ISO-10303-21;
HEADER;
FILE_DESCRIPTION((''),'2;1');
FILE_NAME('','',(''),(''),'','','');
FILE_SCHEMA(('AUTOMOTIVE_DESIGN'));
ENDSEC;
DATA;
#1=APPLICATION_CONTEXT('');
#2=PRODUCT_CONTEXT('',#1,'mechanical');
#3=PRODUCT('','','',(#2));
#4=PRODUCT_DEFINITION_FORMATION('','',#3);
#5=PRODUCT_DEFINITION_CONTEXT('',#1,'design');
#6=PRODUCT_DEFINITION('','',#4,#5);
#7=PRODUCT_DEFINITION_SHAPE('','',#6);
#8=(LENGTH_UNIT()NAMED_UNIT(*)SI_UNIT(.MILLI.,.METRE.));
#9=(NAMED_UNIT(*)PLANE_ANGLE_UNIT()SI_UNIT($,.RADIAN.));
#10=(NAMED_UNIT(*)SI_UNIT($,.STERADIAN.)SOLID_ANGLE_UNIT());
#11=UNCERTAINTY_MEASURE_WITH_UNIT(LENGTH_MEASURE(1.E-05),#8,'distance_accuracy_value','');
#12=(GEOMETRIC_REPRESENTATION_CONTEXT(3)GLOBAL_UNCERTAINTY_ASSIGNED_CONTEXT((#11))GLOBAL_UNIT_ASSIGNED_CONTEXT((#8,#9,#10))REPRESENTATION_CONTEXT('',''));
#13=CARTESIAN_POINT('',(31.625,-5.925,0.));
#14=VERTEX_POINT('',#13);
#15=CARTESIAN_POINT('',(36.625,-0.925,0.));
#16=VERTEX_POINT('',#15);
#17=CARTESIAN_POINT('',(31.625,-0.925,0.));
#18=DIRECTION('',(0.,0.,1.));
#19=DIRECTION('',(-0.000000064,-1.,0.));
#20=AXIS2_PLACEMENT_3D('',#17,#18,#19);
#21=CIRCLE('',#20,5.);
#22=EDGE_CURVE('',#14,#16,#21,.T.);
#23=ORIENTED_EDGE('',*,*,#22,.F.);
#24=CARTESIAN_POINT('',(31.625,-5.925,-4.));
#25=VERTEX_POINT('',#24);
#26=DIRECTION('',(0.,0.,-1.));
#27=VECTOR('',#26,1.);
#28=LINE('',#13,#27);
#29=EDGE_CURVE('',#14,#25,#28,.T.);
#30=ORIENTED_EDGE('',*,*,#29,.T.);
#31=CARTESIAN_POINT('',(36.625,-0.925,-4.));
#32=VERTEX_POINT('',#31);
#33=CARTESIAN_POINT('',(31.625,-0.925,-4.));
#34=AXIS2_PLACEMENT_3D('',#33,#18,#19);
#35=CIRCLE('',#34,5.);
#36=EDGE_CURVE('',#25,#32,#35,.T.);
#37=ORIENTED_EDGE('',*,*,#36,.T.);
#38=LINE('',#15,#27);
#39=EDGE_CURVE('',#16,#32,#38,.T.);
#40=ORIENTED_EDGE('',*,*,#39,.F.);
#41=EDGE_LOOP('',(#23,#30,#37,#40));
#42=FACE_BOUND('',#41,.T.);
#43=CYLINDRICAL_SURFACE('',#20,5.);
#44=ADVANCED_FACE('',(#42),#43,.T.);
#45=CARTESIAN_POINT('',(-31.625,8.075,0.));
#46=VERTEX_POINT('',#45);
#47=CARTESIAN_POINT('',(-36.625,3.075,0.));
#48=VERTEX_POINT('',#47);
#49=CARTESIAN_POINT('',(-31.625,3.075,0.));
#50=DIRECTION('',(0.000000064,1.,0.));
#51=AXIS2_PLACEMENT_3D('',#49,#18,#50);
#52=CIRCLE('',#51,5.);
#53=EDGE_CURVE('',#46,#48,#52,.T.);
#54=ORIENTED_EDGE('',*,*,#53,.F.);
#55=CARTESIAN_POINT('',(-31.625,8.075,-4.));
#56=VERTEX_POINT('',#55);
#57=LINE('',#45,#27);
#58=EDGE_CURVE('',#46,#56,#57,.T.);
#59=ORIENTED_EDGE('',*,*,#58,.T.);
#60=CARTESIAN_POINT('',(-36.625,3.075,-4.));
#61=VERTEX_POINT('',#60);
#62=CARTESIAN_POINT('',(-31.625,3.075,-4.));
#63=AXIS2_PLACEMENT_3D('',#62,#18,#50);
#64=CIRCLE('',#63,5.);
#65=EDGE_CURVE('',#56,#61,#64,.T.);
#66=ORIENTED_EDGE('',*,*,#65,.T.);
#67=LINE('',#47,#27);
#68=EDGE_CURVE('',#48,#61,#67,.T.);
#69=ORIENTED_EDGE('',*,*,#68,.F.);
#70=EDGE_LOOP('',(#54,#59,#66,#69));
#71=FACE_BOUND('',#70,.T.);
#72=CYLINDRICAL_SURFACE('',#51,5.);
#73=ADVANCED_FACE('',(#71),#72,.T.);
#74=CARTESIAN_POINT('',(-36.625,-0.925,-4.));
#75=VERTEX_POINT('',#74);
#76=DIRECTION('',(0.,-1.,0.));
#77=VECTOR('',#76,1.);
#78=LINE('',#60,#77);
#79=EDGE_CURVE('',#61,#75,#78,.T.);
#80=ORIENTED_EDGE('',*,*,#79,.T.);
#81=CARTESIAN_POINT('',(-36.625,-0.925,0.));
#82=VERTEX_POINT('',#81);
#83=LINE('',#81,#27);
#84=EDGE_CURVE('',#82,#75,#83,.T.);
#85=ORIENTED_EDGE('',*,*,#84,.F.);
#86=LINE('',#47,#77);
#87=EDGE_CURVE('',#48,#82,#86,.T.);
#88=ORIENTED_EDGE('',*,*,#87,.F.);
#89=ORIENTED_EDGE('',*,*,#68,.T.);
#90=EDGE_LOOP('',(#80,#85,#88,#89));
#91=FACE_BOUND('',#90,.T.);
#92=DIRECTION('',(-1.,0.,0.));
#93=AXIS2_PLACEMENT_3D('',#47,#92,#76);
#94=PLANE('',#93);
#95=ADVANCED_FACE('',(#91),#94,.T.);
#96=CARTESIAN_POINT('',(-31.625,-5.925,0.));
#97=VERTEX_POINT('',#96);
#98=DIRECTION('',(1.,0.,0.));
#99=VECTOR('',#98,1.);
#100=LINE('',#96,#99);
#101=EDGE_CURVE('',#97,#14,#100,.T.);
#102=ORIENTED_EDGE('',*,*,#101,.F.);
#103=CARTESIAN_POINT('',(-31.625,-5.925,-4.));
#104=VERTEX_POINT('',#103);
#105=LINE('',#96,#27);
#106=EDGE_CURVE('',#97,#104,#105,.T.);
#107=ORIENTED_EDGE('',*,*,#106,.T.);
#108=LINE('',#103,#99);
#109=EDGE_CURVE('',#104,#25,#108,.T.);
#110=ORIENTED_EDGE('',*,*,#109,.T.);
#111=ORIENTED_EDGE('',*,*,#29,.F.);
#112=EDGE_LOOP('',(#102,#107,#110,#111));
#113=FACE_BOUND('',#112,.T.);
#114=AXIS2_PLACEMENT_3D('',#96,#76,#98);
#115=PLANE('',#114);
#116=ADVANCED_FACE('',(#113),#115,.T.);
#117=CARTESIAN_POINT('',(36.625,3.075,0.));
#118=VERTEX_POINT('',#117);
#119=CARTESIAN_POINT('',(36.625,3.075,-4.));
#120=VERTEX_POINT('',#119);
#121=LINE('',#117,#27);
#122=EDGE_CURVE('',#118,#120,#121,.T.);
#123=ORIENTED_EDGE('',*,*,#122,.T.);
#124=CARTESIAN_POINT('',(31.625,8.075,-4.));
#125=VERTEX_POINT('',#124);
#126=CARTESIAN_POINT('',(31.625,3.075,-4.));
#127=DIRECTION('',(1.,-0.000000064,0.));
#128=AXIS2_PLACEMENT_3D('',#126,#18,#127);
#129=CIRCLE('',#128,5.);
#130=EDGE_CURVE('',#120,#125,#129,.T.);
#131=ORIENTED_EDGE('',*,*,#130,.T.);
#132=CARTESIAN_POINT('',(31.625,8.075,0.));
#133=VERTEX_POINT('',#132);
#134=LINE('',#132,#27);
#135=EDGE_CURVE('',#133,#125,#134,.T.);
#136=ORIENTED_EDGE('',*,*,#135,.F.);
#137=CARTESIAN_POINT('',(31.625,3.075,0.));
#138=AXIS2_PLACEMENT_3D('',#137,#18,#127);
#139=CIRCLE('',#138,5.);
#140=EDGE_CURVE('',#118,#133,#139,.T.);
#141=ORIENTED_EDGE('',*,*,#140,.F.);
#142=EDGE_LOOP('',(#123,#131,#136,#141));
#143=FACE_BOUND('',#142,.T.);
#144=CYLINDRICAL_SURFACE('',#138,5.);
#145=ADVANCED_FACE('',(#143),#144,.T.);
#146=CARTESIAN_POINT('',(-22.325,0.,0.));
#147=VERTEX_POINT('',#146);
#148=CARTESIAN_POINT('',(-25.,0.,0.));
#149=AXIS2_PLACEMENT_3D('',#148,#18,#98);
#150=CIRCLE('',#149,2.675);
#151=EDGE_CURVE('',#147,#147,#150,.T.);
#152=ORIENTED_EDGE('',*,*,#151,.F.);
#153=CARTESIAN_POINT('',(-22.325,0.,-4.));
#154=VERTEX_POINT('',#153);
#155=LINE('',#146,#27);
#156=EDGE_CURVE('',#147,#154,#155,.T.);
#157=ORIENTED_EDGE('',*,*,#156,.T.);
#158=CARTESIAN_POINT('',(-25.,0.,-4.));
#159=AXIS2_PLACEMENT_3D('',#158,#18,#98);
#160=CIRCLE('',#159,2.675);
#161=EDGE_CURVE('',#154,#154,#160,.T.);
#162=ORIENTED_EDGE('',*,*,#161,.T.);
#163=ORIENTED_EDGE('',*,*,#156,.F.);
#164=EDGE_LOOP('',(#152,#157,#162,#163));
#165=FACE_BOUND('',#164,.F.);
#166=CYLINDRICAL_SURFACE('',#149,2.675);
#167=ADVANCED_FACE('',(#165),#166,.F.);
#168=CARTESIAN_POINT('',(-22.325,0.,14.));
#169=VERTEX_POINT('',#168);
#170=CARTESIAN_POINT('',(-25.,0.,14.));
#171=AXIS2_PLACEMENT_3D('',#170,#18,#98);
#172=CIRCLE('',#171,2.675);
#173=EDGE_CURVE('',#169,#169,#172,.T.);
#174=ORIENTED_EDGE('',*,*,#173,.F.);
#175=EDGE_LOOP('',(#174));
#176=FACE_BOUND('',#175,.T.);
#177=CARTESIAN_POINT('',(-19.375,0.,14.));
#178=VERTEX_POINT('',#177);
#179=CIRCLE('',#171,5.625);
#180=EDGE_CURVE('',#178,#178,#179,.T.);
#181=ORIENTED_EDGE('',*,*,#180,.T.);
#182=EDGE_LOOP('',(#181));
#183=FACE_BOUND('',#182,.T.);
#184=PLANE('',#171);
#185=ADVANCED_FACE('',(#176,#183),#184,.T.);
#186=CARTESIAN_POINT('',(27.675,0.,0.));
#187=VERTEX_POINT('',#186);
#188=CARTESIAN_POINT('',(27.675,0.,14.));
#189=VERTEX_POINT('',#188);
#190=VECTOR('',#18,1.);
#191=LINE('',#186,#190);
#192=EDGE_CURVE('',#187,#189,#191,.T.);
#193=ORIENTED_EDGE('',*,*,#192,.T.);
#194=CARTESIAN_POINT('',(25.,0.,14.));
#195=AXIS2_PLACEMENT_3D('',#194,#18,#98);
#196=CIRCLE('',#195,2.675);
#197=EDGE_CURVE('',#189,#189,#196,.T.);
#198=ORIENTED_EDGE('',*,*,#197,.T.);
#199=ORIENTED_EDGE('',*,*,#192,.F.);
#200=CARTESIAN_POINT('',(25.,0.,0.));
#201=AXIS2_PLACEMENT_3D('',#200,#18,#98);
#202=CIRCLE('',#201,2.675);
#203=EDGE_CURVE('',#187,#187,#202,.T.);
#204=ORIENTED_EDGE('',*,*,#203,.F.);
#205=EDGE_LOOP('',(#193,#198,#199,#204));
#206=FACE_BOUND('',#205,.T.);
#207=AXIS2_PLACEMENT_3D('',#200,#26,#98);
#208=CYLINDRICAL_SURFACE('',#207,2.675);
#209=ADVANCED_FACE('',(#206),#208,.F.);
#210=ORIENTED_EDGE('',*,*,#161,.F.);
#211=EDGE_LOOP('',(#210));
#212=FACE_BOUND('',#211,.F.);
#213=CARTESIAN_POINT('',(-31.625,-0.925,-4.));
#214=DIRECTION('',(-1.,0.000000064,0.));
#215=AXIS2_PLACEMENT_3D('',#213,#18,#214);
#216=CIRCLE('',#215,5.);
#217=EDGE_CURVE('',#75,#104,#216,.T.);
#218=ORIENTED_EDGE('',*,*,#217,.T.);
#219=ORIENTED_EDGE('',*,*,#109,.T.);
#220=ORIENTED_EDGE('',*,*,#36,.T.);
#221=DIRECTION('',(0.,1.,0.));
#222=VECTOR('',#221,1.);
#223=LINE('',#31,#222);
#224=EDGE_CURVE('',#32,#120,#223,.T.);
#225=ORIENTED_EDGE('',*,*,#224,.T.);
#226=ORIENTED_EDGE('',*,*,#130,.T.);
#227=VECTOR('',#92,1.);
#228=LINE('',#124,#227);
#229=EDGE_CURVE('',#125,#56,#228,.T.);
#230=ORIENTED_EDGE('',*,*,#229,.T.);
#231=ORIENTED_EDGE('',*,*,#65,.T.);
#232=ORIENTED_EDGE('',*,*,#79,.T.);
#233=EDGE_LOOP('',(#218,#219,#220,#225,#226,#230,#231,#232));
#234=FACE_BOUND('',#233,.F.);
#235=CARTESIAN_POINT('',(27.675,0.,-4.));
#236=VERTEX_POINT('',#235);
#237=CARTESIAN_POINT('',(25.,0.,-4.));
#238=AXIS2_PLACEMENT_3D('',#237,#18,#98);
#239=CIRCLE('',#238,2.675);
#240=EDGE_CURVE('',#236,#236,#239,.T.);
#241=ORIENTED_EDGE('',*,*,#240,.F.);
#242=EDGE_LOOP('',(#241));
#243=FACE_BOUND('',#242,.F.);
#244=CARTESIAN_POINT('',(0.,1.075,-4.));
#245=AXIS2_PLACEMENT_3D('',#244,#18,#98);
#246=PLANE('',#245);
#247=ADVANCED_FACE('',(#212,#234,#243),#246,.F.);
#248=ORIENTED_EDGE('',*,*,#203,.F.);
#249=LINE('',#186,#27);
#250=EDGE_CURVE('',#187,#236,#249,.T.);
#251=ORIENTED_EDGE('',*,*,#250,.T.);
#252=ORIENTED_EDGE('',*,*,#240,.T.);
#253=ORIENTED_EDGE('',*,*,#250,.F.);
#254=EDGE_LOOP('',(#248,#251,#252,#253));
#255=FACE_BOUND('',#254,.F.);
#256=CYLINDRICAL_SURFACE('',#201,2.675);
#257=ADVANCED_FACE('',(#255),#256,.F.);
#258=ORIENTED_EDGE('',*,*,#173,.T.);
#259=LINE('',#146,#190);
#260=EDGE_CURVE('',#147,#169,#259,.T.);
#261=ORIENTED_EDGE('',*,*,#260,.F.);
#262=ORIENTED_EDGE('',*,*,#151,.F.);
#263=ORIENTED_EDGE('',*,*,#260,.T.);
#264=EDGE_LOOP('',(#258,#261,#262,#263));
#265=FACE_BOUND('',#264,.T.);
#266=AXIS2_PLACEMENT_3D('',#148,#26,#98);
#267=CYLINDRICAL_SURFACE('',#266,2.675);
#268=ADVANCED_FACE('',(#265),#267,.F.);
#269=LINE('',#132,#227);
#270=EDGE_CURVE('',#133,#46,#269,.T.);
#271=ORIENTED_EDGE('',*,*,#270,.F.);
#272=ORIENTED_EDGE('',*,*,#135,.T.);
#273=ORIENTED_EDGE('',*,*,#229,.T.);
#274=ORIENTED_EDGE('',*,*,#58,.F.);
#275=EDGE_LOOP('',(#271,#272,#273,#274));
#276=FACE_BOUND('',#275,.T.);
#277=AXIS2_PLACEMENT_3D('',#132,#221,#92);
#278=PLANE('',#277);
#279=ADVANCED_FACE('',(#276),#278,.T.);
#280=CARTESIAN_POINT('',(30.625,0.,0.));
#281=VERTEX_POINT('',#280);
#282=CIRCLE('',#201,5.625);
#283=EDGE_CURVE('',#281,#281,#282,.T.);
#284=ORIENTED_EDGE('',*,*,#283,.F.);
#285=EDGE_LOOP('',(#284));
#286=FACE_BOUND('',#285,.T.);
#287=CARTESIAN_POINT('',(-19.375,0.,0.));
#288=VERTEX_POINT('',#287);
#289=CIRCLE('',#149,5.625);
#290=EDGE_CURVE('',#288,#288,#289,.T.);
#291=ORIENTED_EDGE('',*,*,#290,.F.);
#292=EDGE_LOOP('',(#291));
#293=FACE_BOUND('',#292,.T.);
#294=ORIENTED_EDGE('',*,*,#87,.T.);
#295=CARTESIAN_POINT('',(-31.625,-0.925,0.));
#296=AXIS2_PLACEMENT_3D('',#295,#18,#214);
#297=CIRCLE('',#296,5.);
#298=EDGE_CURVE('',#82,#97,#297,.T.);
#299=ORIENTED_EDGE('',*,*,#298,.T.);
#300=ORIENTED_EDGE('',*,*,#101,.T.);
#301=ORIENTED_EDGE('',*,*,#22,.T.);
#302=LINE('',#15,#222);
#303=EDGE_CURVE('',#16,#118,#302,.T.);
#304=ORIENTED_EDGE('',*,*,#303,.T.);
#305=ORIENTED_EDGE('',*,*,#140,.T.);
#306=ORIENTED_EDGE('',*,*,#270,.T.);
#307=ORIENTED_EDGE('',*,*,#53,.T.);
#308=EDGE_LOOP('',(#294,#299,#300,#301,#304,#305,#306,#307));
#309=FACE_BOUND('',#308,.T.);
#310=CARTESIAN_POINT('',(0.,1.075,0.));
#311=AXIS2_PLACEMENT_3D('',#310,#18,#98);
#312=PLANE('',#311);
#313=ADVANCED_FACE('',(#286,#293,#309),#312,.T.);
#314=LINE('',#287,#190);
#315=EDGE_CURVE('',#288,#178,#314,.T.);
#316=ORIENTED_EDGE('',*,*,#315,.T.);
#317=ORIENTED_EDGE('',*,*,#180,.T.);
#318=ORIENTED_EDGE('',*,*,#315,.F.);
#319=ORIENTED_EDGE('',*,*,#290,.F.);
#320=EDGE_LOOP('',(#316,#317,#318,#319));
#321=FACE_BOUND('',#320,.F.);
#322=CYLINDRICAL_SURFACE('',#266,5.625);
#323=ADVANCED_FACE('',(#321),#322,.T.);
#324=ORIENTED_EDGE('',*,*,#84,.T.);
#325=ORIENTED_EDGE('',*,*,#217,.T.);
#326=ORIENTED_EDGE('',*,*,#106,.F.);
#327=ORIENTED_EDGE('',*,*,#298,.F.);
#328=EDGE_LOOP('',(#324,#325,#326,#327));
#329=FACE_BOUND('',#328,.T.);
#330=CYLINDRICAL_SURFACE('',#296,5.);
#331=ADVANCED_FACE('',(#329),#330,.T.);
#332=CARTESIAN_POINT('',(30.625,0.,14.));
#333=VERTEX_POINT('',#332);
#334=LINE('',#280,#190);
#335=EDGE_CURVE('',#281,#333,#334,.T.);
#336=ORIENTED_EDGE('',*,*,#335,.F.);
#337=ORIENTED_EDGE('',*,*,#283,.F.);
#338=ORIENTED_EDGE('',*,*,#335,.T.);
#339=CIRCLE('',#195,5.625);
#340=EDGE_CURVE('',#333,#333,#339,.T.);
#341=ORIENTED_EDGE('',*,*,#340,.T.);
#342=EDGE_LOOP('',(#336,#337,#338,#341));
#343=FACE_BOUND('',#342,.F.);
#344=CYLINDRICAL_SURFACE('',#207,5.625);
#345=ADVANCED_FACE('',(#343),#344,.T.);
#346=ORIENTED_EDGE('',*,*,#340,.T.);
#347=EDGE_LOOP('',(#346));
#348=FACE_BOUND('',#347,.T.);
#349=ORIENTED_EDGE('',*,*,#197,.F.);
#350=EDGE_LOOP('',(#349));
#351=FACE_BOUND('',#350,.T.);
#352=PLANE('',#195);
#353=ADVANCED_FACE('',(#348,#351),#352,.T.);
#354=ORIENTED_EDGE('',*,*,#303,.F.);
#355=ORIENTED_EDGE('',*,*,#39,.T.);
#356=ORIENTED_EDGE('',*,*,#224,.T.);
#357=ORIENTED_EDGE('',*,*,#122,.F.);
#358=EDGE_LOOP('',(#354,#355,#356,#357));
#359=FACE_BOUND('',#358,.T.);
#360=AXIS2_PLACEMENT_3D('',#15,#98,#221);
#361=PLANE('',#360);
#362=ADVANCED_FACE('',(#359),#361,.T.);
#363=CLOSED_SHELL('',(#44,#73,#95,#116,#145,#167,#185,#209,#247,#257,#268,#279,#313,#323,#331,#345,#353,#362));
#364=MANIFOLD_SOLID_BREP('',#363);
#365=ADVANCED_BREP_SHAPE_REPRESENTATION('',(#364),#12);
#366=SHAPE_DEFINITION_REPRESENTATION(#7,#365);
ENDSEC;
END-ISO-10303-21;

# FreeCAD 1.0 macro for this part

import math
import FreeCAD as App
import Part
import Sketcher

V = App.Vector
Q = App.Units.Quantity

doc = App.newDocument("Part")
params = doc.addObject("Spreadsheet::Sheet", "Params")
for row, (alias, value) in enumerate([
    ("sketch1_diameter", "11.25 mm"),
    ("sketch1_diameter2", "5.35 mm"),
    ("pad1_length", "14 mm"),
    ("sketch2_radius", "5 mm"),
    ("sketch2_diameter", "5.35 mm"),
    ("sketch2_height", "4 mm"),
    ("sketch2_width", "63.25 mm"),
    ("pad2_length", "4 mm"),
], start=1):
    params.set(f"A{row}", alias)
    params.set(f"B{row}", "=" + value)
    params.setAlias(f"B{row}", alias)

body = doc.addObject("PartDesign::Body", "Body")
body.AllowCompound = True

# Sketch on XY plane
sketch1 = body.newObject("Sketcher::SketchObject", "Sketch")
sketch1.AttachmentSupport = (doc.getObject("XY_Plane"), [""])
sketch1.MapMode = "FlatFace"
sketch1.addGeometry([
    Part.Circle(V(-25, 0, 0), V(0, 0, 1), 5.6),
    Part.Circle(V(-25, 0, 0), V(0, 0, 1), 2.7),
    Part.Circle(V(25, 0, 0), V(0, 0, 1), 5.6),
    Part.Circle(V(25, 0, 0), V(0, 0, 1), 2.7),
], False)
sketch1.addConstraint([
    Sketcher.Constraint("Coincident", 1, 3, 0, 3),
    Sketcher.Constraint("Coincident", 3, 3, 2, 3),
    Sketcher.Constraint("Equal", 0, 2),
    Sketcher.Constraint("Equal", 1, 3),
    Sketcher.Constraint("Symmetric", 0, 3, 2, 3, -1, 1),
    Sketcher.Constraint("PointOnObject", 0, 3, -1),
    Sketcher.Constraint("Diameter", 0, Q("11.25 mm")),
    Sketcher.Constraint("Diameter", 1, Q("5.35 mm")),
    Sketcher.Constraint("DistanceX", 0, 3, -1, 1, Q("25 mm")),
])
sketch1.setExpression("Constraints[6]", "Params.sketch1_diameter")
sketch1.setExpression("Constraints[7]", "Params.sketch1_diameter2")
pad1 = body.newObject("PartDesign::Pad", "Pad")
pad1.Profile = sketch1
pad1.setExpression("Length", "Params.pad1_length")

# Sketch on XY plane
sketch2 = body.newObject("Sketcher::SketchObject", "Sketch001")
sketch2.AttachmentSupport = (doc.getObject("XY_Plane"), [""])
sketch2.MapMode = "FlatFace"
sketch2.addGeometry([
    Part.LineSegment(V(31.6, 8.1, 0), V(-31.6, 8.1, 0)),  # 0
    Part.ArcOfCircle(Part.Circle(V(-31.6, 3.1, 0), V(0, 0, 1), 5), math.radians(90), math.radians(180)),  # 1
    Part.LineSegment(V(-36.6, 3.1, 0), V(-36.6, -0.9, 0)),  # 2
    Part.ArcOfCircle(Part.Circle(V(-31.6, -0.9, 0), V(0, 0, 1), 5), math.radians(180), math.radians(270)),  # 3
    Part.LineSegment(V(-31.6, -5.9, 0), V(31.6, -5.9, 0)),  # 4
    Part.ArcOfCircle(Part.Circle(V(31.6, -0.9, 0), V(0, 0, 1), 5), math.radians(-90), math.radians(0)),  # 5
    Part.LineSegment(V(36.6, -0.9, 0), V(36.6, 3.1, 0)),  # 6
    Part.ArcOfCircle(Part.Circle(V(31.6, 3.1, 0), V(0, 0, 1), 5), math.radians(0), math.radians(90)),  # 7
    Part.Circle(V(-25, 0, 0), V(0, 0, 1), 2.7),  # 8
    Part.Circle(V(25, 0, 0), V(0, 0, 1), 2.7),  # 9
], False)
sketch2.addConstraint([
    Sketcher.Constraint("Tangent", 0, 2, 1, 1),
    Sketcher.Constraint("Tangent", 1, 2, 2, 1),
    Sketcher.Constraint("Tangent", 2, 2, 3, 1),
    Sketcher.Constraint("Tangent", 3, 2, 4, 1),
    Sketcher.Constraint("Tangent", 4, 2, 5, 1),
    Sketcher.Constraint("Tangent", 5, 2, 6, 1),
    Sketcher.Constraint("Tangent", 6, 2, 7, 1),
    Sketcher.Constraint("Tangent", 7, 2, 0, 1),
    Sketcher.Constraint("Horizontal", 0),
    Sketcher.Constraint("Vertical", 2),
    Sketcher.Constraint("Horizontal", 4),
    Sketcher.Constraint("Vertical", 6),
    Sketcher.Constraint("Equal", 1, 3),
    Sketcher.Constraint("Equal", 3, 5),
    Sketcher.Constraint("Equal", 5, 7),
    Sketcher.Constraint("Equal", 8, 9),
    Sketcher.Constraint("Symmetric", 8, 3, 9, 3, -1, 1),
    Sketcher.Constraint("PointOnObject", 8, 3, -1),
    Sketcher.Constraint("Radius", 1, Q("5 mm")),
    Sketcher.Constraint("Diameter", 8, Q("5.35 mm")),
    Sketcher.Constraint("DistanceY", 2, 2, 2, 1, Q("4 mm")),
    Sketcher.Constraint("DistanceX", 8, 3, -1, 1, Q("25 mm")),
    Sketcher.Constraint("DistanceX", 0, 2, 0, 1, Q("63.25 mm")),
    Sketcher.Constraint("DistanceX", 1, 3, -1, 1, Q("31.625 mm")),
    Sketcher.Constraint("DistanceY", -1, 1, 1, 3, Q("3.075 mm")),
])
sketch2.setExpression("Constraints[18]", "Params.sketch2_radius")
sketch2.setExpression("Constraints[19]", "Params.sketch2_diameter")
sketch2.setExpression("Constraints[20]", "Params.sketch2_height")
sketch2.setExpression("Constraints[22]", "Params.sketch2_width")
pad2 = body.newObject("PartDesign::Pad", "Pad001")
pad2.Profile = sketch2
pad2.setExpression("Length", "Params.pad2_length")
pad2.Reversed = True

doc.recompute()
